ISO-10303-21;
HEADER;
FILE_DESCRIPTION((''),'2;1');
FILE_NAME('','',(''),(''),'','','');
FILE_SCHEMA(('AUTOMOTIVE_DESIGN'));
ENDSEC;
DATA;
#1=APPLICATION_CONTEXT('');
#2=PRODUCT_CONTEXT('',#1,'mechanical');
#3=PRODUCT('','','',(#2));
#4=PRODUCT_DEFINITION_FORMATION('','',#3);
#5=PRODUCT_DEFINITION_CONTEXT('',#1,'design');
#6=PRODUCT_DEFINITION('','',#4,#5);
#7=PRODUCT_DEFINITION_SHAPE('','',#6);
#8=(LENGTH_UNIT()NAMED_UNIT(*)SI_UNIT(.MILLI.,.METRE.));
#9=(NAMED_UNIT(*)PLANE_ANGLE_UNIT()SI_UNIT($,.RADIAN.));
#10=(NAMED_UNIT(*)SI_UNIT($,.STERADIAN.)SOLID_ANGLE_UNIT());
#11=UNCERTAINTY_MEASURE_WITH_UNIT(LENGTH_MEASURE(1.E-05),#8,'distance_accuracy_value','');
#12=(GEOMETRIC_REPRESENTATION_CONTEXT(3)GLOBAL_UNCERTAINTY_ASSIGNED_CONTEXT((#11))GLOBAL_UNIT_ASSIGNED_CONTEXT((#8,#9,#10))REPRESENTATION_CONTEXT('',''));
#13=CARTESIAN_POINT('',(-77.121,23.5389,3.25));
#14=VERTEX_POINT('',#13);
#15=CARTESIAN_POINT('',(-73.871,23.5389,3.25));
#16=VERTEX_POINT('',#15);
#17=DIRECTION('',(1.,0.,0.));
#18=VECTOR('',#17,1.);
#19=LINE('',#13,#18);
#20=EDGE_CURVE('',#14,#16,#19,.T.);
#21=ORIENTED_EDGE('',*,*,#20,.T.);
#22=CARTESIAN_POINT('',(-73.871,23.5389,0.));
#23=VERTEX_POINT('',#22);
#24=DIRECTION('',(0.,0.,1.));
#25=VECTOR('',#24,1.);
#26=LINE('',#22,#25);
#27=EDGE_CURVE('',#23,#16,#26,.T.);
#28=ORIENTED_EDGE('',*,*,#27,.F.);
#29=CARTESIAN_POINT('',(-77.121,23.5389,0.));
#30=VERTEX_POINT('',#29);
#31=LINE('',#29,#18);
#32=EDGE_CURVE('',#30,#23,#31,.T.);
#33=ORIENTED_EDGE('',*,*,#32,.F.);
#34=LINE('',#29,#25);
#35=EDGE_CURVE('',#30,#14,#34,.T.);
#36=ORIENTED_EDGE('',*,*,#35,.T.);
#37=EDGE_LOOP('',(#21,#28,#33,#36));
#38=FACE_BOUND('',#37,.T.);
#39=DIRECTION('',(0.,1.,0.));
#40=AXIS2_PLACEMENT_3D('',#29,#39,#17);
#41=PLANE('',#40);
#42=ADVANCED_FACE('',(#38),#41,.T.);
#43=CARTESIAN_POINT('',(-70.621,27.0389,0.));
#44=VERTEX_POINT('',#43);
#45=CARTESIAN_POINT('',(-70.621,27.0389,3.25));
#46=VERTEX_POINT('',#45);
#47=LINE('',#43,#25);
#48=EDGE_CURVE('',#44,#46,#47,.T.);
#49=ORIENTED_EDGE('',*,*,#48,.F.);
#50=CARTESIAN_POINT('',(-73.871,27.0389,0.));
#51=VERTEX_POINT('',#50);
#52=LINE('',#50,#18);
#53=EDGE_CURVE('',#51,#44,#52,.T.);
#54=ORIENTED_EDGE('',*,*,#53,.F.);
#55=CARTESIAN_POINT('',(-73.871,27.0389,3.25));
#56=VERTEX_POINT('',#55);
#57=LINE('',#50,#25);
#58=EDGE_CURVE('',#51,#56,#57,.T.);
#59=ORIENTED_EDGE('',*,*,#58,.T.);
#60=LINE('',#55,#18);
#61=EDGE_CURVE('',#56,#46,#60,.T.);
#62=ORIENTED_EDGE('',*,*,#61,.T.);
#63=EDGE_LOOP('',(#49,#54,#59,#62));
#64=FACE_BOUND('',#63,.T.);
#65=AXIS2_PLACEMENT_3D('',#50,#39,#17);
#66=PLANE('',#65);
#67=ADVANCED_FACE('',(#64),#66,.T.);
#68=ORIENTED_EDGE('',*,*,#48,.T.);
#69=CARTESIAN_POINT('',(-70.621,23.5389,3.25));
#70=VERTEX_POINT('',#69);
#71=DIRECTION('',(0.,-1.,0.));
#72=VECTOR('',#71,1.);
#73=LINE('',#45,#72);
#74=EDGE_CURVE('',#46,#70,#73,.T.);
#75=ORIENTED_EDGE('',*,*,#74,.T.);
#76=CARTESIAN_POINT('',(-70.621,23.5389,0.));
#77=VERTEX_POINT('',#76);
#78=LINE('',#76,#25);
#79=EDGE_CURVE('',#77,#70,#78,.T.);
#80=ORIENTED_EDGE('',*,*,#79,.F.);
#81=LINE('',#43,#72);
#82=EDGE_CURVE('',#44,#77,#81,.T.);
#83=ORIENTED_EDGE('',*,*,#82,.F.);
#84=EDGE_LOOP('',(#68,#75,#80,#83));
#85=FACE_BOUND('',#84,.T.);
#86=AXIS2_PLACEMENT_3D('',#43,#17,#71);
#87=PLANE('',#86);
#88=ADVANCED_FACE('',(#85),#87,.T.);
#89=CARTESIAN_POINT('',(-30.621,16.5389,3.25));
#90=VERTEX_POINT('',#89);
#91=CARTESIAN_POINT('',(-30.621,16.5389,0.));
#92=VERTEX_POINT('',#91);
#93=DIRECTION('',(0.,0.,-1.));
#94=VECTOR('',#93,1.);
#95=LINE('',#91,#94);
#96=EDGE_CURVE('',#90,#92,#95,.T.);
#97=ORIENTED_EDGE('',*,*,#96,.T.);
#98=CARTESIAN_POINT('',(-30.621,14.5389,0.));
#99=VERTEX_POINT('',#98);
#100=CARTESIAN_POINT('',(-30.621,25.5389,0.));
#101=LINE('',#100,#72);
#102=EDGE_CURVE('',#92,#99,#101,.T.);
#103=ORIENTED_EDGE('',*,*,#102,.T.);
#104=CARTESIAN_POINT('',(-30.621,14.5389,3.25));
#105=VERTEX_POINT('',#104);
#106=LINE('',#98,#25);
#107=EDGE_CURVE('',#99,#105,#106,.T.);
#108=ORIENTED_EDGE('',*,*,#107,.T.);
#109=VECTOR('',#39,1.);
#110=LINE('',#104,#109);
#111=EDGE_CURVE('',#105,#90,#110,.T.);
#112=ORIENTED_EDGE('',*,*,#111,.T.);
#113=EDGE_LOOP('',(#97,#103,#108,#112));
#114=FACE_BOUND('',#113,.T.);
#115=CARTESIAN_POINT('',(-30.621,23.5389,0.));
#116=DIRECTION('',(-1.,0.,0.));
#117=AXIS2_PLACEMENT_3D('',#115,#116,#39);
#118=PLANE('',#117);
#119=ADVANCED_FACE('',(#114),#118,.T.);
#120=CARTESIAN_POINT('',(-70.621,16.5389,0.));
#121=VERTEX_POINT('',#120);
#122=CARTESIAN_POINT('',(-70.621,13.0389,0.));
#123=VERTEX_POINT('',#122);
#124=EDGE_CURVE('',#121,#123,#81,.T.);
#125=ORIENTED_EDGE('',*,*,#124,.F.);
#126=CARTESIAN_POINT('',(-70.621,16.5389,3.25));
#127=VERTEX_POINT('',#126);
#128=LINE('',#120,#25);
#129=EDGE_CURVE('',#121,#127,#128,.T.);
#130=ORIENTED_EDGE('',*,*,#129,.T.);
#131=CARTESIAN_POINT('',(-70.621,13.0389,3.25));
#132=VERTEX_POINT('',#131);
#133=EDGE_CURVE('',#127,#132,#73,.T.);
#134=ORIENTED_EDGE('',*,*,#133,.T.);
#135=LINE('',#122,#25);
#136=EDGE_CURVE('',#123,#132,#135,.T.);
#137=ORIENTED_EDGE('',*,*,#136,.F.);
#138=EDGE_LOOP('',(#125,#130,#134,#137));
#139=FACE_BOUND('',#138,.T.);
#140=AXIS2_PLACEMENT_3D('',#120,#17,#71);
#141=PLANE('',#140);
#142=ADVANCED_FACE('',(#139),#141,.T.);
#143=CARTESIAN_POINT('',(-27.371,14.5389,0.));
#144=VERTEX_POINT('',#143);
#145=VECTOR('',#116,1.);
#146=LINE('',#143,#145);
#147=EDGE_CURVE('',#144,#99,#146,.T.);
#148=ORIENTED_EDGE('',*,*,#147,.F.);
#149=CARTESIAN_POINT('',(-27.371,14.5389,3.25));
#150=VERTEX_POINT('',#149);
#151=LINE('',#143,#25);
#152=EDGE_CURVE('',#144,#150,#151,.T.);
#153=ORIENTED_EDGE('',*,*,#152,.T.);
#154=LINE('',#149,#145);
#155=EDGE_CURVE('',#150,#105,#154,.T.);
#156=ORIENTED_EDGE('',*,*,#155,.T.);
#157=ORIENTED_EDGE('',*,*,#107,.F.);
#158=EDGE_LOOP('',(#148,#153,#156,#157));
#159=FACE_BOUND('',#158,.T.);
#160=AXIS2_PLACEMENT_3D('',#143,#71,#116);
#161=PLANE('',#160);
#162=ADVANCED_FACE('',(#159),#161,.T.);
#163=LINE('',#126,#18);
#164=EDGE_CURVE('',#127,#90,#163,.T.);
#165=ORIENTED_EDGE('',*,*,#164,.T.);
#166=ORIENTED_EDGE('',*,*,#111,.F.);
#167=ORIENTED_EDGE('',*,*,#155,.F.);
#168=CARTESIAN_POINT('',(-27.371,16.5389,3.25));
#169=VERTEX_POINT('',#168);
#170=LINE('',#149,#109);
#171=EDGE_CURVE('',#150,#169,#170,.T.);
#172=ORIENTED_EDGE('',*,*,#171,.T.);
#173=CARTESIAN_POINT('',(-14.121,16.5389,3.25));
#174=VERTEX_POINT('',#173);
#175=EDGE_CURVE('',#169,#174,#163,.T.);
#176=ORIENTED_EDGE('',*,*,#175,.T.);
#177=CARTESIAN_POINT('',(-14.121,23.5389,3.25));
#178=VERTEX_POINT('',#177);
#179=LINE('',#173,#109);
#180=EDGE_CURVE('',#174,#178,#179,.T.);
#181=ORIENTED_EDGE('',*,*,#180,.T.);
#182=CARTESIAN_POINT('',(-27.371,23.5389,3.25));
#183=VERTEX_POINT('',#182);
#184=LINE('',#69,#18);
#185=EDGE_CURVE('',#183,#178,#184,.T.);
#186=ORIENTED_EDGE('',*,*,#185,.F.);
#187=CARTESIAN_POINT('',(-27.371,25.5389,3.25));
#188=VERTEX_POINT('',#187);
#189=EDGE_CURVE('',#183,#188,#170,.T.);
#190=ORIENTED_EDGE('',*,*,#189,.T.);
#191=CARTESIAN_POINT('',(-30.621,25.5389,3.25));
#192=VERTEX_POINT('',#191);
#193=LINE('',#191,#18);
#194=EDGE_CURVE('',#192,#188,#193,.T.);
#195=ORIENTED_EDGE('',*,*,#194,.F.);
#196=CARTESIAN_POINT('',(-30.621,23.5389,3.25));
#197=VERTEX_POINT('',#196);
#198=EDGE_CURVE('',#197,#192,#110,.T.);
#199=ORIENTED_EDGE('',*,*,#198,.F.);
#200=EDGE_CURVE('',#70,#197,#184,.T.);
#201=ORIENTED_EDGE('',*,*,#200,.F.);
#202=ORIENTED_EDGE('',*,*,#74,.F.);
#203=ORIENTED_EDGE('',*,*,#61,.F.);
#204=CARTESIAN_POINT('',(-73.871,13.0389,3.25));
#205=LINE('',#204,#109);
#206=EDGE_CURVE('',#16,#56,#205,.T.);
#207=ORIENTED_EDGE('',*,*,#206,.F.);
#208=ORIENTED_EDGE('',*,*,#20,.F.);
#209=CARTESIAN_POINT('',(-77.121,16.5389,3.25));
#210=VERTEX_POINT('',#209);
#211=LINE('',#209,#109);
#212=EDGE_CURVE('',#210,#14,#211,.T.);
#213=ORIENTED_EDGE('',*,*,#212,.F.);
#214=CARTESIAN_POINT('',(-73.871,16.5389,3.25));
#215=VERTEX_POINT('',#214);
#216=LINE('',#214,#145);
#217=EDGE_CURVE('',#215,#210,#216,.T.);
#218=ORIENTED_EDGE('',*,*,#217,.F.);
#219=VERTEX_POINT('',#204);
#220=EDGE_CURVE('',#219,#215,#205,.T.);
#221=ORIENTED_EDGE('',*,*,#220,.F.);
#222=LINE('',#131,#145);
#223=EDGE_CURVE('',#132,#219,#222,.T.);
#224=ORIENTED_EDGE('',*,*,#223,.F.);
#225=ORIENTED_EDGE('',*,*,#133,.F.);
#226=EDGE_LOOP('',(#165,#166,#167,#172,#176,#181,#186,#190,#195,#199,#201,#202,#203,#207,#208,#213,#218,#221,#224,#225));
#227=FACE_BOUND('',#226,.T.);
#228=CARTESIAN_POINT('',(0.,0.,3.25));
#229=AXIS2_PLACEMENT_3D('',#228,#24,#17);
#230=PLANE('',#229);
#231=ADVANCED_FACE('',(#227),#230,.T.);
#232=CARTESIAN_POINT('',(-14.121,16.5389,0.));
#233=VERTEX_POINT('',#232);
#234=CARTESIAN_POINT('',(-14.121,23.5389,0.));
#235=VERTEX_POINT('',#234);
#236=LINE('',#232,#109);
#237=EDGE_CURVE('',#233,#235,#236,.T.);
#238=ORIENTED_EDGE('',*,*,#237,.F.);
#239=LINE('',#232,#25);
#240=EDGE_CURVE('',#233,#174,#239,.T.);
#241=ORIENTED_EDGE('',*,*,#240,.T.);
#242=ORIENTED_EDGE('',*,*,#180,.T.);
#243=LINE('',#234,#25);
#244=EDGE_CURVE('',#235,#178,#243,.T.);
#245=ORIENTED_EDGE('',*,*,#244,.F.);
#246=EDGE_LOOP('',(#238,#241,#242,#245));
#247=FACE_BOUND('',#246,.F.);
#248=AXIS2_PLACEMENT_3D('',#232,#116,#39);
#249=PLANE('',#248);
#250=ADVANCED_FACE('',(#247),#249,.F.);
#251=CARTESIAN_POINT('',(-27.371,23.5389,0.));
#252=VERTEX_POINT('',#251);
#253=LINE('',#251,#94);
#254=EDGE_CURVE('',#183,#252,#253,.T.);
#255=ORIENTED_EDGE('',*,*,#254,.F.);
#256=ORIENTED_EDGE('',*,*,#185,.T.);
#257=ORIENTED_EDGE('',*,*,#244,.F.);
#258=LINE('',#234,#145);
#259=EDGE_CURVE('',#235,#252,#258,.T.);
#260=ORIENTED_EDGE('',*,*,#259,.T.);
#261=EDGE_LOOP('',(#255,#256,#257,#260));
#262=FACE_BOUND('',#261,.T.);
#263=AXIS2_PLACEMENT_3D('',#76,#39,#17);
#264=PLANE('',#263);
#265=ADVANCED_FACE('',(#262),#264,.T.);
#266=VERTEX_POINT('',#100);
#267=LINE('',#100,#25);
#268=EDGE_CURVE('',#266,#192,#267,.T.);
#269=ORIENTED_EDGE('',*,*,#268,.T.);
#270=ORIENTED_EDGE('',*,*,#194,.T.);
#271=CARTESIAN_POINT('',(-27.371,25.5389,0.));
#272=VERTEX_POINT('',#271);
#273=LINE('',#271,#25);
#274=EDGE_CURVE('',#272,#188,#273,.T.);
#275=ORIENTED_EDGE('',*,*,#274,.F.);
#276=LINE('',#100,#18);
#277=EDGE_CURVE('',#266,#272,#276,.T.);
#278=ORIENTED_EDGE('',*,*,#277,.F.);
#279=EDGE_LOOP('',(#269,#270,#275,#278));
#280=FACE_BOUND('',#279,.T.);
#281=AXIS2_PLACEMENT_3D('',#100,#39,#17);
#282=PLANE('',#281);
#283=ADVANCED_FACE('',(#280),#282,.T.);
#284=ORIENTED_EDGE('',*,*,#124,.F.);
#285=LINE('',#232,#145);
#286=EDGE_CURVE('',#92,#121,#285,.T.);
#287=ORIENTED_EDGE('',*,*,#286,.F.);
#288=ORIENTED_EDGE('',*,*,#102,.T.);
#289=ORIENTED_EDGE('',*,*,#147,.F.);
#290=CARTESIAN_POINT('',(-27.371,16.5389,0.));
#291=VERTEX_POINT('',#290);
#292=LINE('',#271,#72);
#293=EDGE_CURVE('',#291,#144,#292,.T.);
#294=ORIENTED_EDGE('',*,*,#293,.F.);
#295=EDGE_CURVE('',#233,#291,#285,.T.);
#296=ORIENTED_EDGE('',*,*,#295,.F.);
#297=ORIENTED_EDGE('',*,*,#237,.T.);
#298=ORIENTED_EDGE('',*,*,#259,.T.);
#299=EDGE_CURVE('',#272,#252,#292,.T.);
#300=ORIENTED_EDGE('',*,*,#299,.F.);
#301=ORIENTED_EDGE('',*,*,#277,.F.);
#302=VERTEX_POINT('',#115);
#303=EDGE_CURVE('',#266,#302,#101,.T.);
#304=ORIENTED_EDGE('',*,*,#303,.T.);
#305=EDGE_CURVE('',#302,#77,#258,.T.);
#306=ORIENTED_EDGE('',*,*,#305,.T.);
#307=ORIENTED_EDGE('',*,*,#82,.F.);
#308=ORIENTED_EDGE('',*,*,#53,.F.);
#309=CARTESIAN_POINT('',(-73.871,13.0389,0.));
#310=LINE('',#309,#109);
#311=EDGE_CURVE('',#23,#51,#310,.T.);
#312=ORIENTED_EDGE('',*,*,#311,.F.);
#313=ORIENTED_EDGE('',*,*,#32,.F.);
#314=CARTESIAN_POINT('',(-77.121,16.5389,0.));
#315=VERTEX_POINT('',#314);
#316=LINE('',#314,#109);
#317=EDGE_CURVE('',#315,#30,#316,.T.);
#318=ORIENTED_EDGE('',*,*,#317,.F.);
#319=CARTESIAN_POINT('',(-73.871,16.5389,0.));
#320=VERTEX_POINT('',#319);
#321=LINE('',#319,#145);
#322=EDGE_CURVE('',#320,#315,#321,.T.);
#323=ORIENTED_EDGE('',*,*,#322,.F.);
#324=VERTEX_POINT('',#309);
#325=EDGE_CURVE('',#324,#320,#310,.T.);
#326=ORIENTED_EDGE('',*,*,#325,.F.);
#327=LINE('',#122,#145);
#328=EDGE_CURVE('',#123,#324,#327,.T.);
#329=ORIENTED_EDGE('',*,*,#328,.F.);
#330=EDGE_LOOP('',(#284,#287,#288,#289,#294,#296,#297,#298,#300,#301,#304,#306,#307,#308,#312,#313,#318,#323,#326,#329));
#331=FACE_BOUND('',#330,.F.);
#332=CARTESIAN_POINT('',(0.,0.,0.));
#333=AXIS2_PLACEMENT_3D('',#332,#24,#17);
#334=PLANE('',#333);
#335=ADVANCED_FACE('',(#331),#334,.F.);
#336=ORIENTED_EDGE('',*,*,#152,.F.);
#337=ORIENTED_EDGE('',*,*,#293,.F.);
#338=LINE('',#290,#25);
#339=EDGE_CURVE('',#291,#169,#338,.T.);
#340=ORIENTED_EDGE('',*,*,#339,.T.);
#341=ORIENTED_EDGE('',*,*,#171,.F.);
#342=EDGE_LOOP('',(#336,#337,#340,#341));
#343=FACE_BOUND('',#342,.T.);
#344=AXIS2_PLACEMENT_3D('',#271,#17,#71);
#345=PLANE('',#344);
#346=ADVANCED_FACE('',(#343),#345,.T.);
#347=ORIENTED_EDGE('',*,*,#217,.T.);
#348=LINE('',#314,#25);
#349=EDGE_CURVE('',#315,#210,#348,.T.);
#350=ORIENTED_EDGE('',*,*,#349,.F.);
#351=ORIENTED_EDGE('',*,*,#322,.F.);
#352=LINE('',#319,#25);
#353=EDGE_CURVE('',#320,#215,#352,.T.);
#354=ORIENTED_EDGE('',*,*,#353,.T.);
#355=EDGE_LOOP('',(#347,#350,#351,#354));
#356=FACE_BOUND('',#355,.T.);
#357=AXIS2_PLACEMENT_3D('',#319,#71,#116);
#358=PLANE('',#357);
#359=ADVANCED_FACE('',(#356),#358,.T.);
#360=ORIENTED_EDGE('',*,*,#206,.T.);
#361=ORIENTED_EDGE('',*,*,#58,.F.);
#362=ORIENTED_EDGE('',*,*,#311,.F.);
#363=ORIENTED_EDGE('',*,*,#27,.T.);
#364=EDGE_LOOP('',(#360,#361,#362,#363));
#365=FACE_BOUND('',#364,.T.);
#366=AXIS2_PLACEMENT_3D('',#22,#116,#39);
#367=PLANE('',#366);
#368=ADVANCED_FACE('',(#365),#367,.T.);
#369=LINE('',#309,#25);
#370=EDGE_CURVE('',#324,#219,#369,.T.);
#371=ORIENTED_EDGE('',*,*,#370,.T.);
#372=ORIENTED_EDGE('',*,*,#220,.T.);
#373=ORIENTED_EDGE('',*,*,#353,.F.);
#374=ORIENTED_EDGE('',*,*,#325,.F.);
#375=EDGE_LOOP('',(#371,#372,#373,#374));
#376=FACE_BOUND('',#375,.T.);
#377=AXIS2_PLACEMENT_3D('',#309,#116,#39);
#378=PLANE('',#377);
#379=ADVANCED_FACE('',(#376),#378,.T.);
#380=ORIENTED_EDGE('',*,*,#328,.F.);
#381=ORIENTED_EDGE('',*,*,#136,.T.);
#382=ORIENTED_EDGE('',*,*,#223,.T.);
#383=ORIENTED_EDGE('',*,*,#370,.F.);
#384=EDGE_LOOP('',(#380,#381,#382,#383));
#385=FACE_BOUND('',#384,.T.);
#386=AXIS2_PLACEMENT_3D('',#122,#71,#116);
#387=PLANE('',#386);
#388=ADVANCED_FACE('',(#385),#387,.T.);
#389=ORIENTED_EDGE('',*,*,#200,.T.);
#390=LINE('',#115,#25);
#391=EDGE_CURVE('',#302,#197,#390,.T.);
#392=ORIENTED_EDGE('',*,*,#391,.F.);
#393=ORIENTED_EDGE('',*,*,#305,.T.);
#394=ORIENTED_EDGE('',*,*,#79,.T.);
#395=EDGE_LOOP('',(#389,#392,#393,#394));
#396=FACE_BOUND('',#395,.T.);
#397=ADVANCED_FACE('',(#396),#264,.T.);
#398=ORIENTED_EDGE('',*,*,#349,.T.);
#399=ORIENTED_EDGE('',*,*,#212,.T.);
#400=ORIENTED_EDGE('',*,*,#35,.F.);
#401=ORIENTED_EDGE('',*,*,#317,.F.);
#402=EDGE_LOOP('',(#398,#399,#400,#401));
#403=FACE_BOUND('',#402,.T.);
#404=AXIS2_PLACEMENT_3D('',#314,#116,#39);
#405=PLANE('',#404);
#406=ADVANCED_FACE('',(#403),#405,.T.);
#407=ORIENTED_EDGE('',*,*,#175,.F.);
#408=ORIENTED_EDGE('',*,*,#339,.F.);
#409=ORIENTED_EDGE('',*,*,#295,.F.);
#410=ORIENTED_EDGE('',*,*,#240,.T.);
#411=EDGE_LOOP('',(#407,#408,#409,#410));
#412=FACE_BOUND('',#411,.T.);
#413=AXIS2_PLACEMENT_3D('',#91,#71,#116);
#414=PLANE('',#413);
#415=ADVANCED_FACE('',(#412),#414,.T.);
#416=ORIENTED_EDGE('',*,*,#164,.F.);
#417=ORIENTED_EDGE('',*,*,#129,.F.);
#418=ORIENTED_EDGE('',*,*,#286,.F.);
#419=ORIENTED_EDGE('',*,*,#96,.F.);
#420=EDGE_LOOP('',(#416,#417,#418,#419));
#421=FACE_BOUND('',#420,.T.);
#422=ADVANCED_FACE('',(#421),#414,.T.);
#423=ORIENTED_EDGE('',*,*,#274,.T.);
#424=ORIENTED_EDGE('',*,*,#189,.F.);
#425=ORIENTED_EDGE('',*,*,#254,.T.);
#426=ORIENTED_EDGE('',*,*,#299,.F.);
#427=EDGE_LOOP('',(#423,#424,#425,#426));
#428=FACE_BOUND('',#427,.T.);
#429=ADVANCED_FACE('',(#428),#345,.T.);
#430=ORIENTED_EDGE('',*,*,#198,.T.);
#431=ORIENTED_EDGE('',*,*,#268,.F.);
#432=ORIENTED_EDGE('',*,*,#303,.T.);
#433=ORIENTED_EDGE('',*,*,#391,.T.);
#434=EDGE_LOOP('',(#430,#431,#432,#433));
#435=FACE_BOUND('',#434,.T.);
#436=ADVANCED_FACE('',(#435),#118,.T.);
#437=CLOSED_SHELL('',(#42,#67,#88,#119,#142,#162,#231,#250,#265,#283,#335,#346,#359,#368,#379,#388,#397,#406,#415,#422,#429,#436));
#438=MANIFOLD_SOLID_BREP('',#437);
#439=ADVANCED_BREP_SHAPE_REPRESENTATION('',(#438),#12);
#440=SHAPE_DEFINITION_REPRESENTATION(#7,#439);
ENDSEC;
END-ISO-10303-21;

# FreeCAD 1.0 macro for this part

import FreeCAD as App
import Part
import Sketcher


def add_polygon(sketch, points):
    """Adds a closed chain of lines whose ends are joined by coincident constraints."""
    first, n = sketch.GeometryCount, len(points)
    for a, b in zip(points, points[1:] + points[:1]):
        sketch.addGeometry(Part.LineSegment(App.Vector(*a, 0), App.Vector(*b, 0)), False)
    for i in range(n):
        sketch.addConstraint(Sketcher.Constraint("Coincident", first + i, 2, first + (i + 1) % n, 1))

doc = App.newDocument("Part")
body = doc.addObject("PartDesign::Body", "Body")

sketch1 = doc.addObject("Sketcher::SketchObject", "Sketch")
body.addObject(sketch1)
sketch1.AttachmentSupport = (doc.XY_Plane, [""])
sketch1.MapMode = "FlatFace"
add_polygon(sketch1, [(-70.6, 23.5), (-70.6, 27), (-73.9, 27), (-73.9, 23.5), (-77.1, 23.5), (-77.1, 16.5), (-73.9, 16.5), (-73.9, 13), (-70.6, 13), (-70.6, 16.5), (-14.1, 16.5), (-14.1, 23.5)])
sketch1.addConstraint(Sketcher.Constraint("Vertical", 0))
sketch1.addConstraint(Sketcher.Constraint("Horizontal", 1))
sketch1.addConstraint(Sketcher.Constraint("Vertical", 2))
sketch1.addConstraint(Sketcher.Constraint("Horizontal", 3))
sketch1.addConstraint(Sketcher.Constraint("Vertical", 4))
sketch1.addConstraint(Sketcher.Constraint("Horizontal", 5))
sketch1.addConstraint(Sketcher.Constraint("Vertical", 6))
sketch1.addConstraint(Sketcher.Constraint("Horizontal", 7))
sketch1.addConstraint(Sketcher.Constraint("Vertical", 8))
sketch1.addConstraint(Sketcher.Constraint("Horizontal", 9))
sketch1.addConstraint(Sketcher.Constraint("Vertical", 10))
sketch1.addConstraint(Sketcher.Constraint("Horizontal", 11))
sketch1.addConstraint(Sketcher.Constraint("Horizontal", 5, 2, 8, 2))
sketch1.addConstraint(Sketcher.Constraint("Horizontal", 3, 2, 10, 2))
sketch1.addConstraint(Sketcher.Constraint("Vertical", 2, 2, 5, 2))
sketch1.addConstraint(Sketcher.Constraint("Vertical", 0, 2, 7, 2))
sketch1.addConstraint(Sketcher.Constraint("Equal", 1, 3))
sketch1.addConstraint(Sketcher.Constraint("Equal", 2, 6))
sketch1.addConstraint(Sketcher.Constraint("DistanceY", 4, 2, 4, 1, 7.0))
sketch1.addConstraint(Sketcher.Constraint("DistanceY", 6, 2, 1, 2, 14.0))
sketch1.addConstraint(Sketcher.Constraint("DistanceX", 1, 2, 1, 1, 3.25))
sketch1.addConstraint(Sketcher.Constraint("DistanceX", 9, 1, 9, 2, 56.5))
sketch1.addConstraint(Sketcher.Constraint("DistanceX", 0, 2, -1, 1, 70.621))
sketch1.addConstraint(Sketcher.Constraint("DistanceY", -1, 1, 0, 2, 27.039))
pad1 = doc.addObject("PartDesign::Pad", "Pad")
body.addObject(pad1)
pad1.Profile = sketch1
pad1.Length = 3.25

sketch2 = doc.addObject("Sketcher::SketchObject", "Sketch001")
body.addObject(sketch2)
sketch2.AttachmentSupport = (doc.XY_Plane, [""])
sketch2.MapMode = "FlatFace"
add_polygon(sketch2, [(-30.6, 25.5), (-30.6, 14.5), (-27.4, 14.5), (-27.4, 25.5)])
sketch2.addConstraint(Sketcher.Constraint("Vertical", 0))
sketch2.addConstraint(Sketcher.Constraint("Horizontal", 1))
sketch2.addConstraint(Sketcher.Constraint("Vertical", 2))
sketch2.addConstraint(Sketcher.Constraint("Horizontal", 3))
sketch2.addConstraint(Sketcher.Constraint("DistanceY", 0, 2, 0, 1, 11.0))
sketch2.addConstraint(Sketcher.Constraint("DistanceX", 1, 1, 1, 2, 3.25))
sketch2.addConstraint(Sketcher.Constraint("DistanceX", 0, 2, -1, 1, 30.621))
sketch2.addConstraint(Sketcher.Constraint("DistanceY", -1, 1, 0, 2, 14.539))
pad2 = doc.addObject("PartDesign::Pad", "Pad001")
body.addObject(pad2)
pad2.Profile = sketch2
pad2.Length = 3.25

doc.recompute()
